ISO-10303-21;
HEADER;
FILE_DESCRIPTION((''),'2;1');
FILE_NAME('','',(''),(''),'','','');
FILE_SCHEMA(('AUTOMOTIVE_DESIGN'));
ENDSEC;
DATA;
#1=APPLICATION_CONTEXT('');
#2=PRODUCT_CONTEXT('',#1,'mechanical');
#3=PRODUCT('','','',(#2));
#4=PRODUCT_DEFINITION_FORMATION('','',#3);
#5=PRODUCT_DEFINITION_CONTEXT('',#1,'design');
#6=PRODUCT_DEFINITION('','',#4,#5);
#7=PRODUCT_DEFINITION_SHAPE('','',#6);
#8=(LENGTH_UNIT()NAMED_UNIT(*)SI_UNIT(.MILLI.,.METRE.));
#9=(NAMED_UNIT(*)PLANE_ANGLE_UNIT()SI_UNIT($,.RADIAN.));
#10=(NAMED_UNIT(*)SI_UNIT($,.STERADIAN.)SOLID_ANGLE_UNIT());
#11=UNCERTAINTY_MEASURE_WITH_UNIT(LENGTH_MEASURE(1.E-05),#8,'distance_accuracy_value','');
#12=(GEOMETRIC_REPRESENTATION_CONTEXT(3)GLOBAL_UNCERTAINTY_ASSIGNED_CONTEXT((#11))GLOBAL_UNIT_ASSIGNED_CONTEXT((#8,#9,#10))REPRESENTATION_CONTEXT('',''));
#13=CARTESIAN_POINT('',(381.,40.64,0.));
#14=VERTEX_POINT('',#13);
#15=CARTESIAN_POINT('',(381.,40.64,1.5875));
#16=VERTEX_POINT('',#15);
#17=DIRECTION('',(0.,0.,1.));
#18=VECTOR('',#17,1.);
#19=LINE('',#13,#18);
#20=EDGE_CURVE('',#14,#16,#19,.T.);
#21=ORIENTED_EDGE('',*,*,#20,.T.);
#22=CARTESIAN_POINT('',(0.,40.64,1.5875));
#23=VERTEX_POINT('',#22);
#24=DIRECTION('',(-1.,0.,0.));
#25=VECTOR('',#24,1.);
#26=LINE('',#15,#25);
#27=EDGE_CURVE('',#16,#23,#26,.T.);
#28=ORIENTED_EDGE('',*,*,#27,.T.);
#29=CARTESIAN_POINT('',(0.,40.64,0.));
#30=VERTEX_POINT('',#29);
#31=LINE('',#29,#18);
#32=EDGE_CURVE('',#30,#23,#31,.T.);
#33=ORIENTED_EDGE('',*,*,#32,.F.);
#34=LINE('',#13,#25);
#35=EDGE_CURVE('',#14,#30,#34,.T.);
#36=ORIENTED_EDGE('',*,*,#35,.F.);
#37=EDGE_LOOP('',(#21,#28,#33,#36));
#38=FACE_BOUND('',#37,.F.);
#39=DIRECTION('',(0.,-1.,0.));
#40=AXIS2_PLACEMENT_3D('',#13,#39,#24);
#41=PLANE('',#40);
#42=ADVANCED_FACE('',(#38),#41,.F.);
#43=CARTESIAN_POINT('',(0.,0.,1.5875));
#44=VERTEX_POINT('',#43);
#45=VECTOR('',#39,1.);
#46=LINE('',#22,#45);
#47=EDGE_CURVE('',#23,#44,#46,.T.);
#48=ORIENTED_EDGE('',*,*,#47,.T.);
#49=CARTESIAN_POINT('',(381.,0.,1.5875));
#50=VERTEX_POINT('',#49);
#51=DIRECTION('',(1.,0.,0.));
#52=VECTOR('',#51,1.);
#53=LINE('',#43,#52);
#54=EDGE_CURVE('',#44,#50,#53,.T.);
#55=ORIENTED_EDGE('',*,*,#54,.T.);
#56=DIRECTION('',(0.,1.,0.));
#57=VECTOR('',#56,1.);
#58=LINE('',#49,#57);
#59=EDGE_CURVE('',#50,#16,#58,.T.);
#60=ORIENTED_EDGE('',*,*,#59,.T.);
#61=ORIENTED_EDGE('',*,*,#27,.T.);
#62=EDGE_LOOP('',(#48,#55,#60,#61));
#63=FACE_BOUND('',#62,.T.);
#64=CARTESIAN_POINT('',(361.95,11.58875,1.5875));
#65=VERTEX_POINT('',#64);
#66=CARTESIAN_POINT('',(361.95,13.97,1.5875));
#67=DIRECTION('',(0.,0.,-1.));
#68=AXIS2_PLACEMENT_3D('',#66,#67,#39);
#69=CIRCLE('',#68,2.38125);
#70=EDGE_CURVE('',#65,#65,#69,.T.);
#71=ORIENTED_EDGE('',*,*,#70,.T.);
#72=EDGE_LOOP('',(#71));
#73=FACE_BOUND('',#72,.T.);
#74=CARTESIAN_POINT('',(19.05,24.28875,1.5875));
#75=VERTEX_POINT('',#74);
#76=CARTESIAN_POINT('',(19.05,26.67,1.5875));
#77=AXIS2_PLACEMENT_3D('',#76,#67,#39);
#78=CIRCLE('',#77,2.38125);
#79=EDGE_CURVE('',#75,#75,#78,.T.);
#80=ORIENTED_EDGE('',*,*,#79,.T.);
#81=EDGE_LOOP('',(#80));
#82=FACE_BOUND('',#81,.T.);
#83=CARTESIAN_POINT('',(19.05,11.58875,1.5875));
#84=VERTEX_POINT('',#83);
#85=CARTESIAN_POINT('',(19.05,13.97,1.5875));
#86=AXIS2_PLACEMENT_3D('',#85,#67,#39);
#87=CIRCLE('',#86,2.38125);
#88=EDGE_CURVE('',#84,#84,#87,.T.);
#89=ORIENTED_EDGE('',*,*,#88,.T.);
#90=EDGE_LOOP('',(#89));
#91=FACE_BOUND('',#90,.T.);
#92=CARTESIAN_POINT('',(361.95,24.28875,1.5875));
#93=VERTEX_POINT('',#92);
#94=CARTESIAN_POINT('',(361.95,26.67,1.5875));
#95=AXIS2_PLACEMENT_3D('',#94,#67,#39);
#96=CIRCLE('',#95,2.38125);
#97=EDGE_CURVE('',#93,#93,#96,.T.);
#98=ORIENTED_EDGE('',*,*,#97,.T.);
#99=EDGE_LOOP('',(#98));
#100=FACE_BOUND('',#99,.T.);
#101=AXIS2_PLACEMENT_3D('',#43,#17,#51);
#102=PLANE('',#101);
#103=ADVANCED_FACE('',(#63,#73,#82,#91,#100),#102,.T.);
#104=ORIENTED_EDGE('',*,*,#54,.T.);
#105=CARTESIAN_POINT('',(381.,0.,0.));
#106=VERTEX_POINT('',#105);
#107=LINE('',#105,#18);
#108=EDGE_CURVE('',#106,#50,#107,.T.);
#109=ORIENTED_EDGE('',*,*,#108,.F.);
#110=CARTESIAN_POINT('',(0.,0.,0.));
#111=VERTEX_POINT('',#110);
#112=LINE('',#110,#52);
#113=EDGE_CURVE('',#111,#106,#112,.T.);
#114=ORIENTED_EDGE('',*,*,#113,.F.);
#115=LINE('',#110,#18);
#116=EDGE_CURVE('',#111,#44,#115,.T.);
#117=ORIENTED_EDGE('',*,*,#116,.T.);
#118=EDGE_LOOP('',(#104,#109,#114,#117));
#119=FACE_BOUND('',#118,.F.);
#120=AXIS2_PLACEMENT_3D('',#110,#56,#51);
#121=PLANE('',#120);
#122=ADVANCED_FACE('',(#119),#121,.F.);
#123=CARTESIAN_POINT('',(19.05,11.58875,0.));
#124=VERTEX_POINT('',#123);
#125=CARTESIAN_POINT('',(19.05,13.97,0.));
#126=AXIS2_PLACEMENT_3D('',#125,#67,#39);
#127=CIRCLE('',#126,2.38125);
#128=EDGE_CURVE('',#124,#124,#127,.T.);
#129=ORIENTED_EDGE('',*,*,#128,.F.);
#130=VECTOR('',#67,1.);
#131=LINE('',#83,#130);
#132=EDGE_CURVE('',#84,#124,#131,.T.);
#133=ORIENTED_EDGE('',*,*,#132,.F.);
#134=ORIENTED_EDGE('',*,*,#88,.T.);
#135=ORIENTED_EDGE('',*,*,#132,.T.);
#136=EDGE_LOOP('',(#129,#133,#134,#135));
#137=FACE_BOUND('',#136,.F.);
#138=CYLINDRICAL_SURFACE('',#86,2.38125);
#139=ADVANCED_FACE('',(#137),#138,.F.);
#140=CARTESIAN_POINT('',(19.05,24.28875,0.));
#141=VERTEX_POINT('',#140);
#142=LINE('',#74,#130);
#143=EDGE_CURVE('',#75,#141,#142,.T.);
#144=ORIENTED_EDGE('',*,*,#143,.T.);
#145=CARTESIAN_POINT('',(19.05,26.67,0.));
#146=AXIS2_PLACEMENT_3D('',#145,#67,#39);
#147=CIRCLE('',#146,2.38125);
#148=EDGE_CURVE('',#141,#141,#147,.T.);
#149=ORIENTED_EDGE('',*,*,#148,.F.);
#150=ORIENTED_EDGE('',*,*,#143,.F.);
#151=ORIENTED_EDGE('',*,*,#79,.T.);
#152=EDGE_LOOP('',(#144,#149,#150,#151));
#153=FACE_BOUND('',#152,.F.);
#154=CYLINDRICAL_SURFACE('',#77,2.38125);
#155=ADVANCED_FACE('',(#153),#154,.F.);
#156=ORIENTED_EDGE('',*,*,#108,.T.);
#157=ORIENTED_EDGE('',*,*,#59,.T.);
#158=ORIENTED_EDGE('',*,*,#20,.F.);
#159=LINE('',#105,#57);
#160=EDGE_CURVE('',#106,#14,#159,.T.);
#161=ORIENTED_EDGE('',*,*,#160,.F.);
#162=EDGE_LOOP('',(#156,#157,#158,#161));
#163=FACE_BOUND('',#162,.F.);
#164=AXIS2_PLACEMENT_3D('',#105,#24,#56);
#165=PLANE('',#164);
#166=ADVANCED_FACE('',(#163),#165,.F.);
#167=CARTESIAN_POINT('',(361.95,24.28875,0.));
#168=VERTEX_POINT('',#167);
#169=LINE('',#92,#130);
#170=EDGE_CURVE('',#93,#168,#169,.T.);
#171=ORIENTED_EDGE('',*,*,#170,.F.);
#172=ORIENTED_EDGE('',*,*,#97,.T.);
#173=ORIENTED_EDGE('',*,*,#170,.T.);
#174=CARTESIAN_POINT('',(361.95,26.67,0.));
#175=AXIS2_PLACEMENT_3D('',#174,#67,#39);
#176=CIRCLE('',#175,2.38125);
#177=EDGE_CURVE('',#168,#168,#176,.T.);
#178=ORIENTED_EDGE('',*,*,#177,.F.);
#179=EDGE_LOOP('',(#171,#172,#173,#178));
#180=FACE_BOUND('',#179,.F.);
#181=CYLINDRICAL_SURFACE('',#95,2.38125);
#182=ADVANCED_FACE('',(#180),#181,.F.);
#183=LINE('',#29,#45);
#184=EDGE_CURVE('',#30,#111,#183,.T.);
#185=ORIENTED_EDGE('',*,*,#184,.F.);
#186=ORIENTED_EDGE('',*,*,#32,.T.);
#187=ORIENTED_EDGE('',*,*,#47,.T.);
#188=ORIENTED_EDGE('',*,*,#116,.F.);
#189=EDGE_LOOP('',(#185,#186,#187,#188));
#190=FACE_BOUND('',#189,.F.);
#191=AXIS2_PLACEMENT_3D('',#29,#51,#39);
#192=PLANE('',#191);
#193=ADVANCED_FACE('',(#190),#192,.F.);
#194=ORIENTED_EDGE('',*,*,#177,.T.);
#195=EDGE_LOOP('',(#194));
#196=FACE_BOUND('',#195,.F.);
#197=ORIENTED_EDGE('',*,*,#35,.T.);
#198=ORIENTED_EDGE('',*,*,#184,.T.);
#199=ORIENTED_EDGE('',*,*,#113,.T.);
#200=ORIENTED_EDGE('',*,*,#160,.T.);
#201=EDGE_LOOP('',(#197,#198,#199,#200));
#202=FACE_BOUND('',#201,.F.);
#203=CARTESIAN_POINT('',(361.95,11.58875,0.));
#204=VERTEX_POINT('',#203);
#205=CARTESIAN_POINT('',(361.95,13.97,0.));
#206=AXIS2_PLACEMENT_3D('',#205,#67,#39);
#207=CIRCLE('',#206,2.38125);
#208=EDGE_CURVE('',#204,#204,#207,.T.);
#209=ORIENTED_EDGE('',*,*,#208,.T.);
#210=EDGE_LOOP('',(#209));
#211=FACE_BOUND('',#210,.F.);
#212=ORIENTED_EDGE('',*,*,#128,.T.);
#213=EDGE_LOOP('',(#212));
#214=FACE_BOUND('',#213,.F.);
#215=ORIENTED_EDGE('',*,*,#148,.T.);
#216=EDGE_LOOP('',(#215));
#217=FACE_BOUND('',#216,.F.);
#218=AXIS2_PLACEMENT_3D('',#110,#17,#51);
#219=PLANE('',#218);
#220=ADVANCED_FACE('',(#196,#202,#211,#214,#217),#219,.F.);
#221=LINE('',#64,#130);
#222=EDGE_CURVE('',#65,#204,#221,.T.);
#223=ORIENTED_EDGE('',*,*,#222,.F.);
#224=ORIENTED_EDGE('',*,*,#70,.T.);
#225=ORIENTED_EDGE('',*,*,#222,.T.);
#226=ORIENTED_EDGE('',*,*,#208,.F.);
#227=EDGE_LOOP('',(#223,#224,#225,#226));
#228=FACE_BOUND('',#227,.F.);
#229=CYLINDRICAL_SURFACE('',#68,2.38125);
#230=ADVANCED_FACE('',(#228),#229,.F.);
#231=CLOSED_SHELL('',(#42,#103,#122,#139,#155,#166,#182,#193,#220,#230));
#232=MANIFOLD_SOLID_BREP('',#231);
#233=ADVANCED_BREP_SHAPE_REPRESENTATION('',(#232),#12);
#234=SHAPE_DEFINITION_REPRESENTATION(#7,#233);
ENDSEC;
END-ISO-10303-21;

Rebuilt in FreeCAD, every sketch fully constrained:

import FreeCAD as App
import Part
import Sketcher
Q = App.Units.Quantity

doc = App.newDocument("Part")
body = doc.addObject("PartDesign::Body", "Body")

sketch1 = body.newObject("Sketcher::SketchObject", "Sketch")
sketch1.AttachmentSupport = (doc.getObject("XY_Plane"), [""])
sketch1.MapMode = "FlatFace"
sketch1.addGeometry([
    Part.LineSegment(App.Vector(0, 40.64, 0), App.Vector(0, 0, 0)),
    Part.LineSegment(App.Vector(0, 0, 0), App.Vector(381, 0, 0)),
    Part.LineSegment(App.Vector(381, 0, 0), App.Vector(381, 40.64, 0)),
    Part.LineSegment(App.Vector(381, 40.64, 0), App.Vector(0, 40.64, 0)),
], False)
sketch1.addConstraint([
    Sketcher.Constraint("Coincident", 0, 2, 1, 1),
    Sketcher.Constraint("Coincident", 1, 2, 2, 1),
    Sketcher.Constraint("Coincident", 2, 2, 3, 1),
    Sketcher.Constraint("Coincident", 3, 2, 0, 1),
    Sketcher.Constraint("Vertical", 0),
    Sketcher.Constraint("Horizontal", 1),
    Sketcher.Constraint("Vertical", 2),
    Sketcher.Constraint("Horizontal", 3),
    Sketcher.Constraint("Coincident", 0, 2, -1, 1),
    Sketcher.Constraint("DistanceX", 1, 1, 1, 2, Q("15 in")),
    Sketcher.Constraint("DistanceY", 0, 2, 0, 1, Q("1.6 in")),
])
pad1 = body.newObject("PartDesign::Pad", "Pad")
pad1.Profile = sketch1
pad1.Length = Q("0.0625 in")

sketch2 = body.newObject("Sketcher::SketchObject", "Sketch001")
sketch2.AttachmentSupport = (doc.getObject("XY_Plane"), [""])
sketch2.MapMode = "FlatFace"
sketch2.AttachmentOffset = App.Placement(App.Vector(0, 0, 0.0625 * 25.4), App.Rotation())
sketch2.addGeometry([
    Part.Circle(App.Vector(19.05, 13.97, 0), App.Vector(0, 0, 1), 2.38125),
    Part.Circle(App.Vector(19.05, 26.67, 0), App.Vector(0, 0, 1), 2.38125),
    Part.Circle(App.Vector(361.95, 26.67, 0), App.Vector(0, 0, 1), 2.38125),
    Part.Circle(App.Vector(361.95, 13.97, 0), App.Vector(0, 0, 1), 2.38125),
], False)
sketch2.addConstraint([
    Sketcher.Constraint("Equal", 0, 1),
    Sketcher.Constraint("Equal", 1, 2),
    Sketcher.Constraint("Equal", 2, 3),
    Sketcher.Constraint("Horizontal", 1, 3, 2, 3),
    Sketcher.Constraint("Horizontal", 0, 3, 3, 3),
    Sketcher.Constraint("Vertical", 0, 3, 1, 3),
    Sketcher.Constraint("Vertical", 2, 3, 3, 3),
    Sketcher.Constraint("Diameter", 0, Q("0.1875 in")),
    Sketcher.Constraint("DistanceY", 0, 3, 1, 3, Q("0.5 in")),
    Sketcher.Constraint("DistanceX", 1, 3, 2, 3, Q("13.5 in")),
    Sketcher.Constraint("DistanceX", -1, 1, 0, 3, Q("0.75 in")),
    Sketcher.Constraint("DistanceY", -1, 1, 0, 3, Q("0.55 in")),
])
doc.recompute()
hole = body.newObject("PartDesign::Hole", "Hole")
hole.Profile = sketch2
hole.ThreadType = "None"
hole.Diameter = Q("0.1875 in")
hole.DepthType = "ThroughAll"

doc.recompute()
